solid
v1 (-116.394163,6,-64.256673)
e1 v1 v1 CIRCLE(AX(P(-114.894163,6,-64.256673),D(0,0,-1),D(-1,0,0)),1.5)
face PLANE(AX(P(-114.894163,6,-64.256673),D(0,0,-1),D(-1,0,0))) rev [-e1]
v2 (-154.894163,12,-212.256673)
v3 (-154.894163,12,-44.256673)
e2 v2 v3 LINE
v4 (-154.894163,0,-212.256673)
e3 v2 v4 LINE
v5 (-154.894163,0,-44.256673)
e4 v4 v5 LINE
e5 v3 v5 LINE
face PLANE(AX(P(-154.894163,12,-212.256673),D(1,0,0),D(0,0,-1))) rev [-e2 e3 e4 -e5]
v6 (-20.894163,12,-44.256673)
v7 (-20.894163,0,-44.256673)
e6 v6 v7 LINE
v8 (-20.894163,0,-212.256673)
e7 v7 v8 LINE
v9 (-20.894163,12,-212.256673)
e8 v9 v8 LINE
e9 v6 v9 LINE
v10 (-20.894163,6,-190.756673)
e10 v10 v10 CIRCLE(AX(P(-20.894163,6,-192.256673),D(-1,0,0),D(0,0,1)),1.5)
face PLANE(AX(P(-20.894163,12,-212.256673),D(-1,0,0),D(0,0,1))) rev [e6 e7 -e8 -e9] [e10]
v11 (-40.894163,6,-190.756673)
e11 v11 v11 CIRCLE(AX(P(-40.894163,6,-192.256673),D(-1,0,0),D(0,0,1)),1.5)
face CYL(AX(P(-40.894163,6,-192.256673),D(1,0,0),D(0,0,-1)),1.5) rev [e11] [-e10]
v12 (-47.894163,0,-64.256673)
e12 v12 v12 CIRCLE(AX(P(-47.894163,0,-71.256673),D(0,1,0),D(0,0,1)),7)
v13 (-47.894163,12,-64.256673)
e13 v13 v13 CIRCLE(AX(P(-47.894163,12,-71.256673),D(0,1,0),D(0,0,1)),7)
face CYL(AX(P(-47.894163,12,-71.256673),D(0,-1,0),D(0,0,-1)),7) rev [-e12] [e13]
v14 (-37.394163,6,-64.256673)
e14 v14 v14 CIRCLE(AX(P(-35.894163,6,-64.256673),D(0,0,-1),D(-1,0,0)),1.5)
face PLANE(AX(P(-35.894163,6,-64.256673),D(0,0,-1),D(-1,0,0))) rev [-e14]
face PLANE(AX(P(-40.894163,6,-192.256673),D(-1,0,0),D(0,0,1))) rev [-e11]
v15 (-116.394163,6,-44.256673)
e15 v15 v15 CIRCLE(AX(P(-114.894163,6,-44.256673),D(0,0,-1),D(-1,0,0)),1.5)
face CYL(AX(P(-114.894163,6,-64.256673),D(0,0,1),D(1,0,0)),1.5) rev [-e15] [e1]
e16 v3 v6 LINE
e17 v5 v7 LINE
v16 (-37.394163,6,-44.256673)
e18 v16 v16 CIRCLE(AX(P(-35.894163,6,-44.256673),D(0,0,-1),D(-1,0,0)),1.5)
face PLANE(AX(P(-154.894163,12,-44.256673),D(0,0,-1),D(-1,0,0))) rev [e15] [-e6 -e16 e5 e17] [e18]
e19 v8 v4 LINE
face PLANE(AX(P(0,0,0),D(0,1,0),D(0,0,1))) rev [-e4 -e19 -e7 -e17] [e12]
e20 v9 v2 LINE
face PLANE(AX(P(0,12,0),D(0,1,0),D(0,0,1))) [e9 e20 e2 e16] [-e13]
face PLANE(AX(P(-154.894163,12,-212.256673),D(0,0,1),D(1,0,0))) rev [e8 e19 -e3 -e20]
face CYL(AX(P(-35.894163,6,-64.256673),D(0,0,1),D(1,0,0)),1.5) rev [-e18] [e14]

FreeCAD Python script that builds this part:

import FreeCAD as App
import Part
import Sketcher
from FreeCAD import Vector
Q = App.Units.Quantity


def add_polygon(sketch, points):
    """Adds a closed chain of lines whose ends are joined by coincident constraints."""
    first, n = sketch.GeometryCount, len(points)
    for a, b in zip(points, points[1:] + points[:1]):
        sketch.addGeometry(Part.LineSegment(App.Vector(*a, 0), App.Vector(*b, 0)), False)
    for i in range(n):
        sketch.addConstraint(Sketcher.Constraint("Coincident", first + i, 2, first + (i + 1) % n, 1))

doc = App.newDocument("Part")
body = doc.addObject("PartDesign::Body", "Body")

sketch1 = body.newObject("Sketcher::SketchObject", "Sketch")
sketch1.AttachmentSupport = (doc.getObject("XZ_Plane"), [""])
sketch1.MapMode = "FlatFace"
add_polygon(sketch1, [(-155, -212), (-155, -44), (-21, -44), (-21, -212)])
sketch1.addGeometry(Part.Circle(Vector(-48, -71, 0), Vector(0, 0, 1), 7), False)
sketch1.addConstraint(Sketcher.Constraint("Vertical", 0))
sketch1.addConstraint(Sketcher.Constraint("Horizontal", 1))
sketch1.addConstraint(Sketcher.Constraint("Vertical", 2))
sketch1.addConstraint(Sketcher.Constraint("Horizontal", 3))
sketch1.addConstraint(Sketcher.Constraint("Diameter", 4, Q("14 mm")))
sketch1.addConstraint(Sketcher.Constraint("DistanceX", 1, 1, 1, 2, Q("134 mm")))
sketch1.addConstraint(Sketcher.Constraint("DistanceY", 0, 1, 0, 2, Q("168 mm")))
sketch1.addConstraint(Sketcher.Constraint("DistanceX", 0, 2, 4, 3, Q("107 mm")))
sketch1.addConstraint(Sketcher.Constraint("DistanceY", 4, 3, 0, 2, Q("27 mm")))
sketch1.addConstraint(Sketcher.Constraint("DistanceX", 4, 3, -1, 1, Q("47.894163 mm")))
sketch1.addConstraint(Sketcher.Constraint("DistanceY", 4, 3, -1, 1, Q("71.256673 mm")))
pad1 = body.newObject("PartDesign::Pad", "Pad")
pad1.Profile = sketch1
pad1.Length = 12
pad1.Reversed = True

sketch2 = body.newObject("Sketcher::SketchObject", "Sketch001")
sketch2.AttachmentSupport = (doc.getObject("XY_Plane"), [""])
sketch2.MapMode = "FlatFace"
sketch2.AttachmentOffset = App.Placement(Vector(0, 0, -44.256673), App.Rotation())
sketch2.addGeometry(Part.Circle(Vector(-114.9, 6, 0), Vector(0, 0, 1), 1.5), False)
sketch2.addGeometry(Part.Circle(Vector(-35.9, 6, 0), Vector(0, 0, 1), 1.5), False)
sketch2.addConstraint(Sketcher.Constraint("Equal", 0, 1))
sketch2.addConstraint(Sketcher.Constraint("Horizontal", 0, 3, 1, 3))
sketch2.addConstraint(Sketcher.Constraint("Diameter", 0, Q("3 mm")))
sketch2.addConstraint(Sketcher.Constraint("DistanceY", -1, 1, 0, 3, Q("6 mm")))
sketch2.addConstraint(Sketcher.Constraint("DistanceX", 0, 3, 1, 3, Q("79 mm")))
sketch2.addConstraint(Sketcher.Constraint("DistanceX", 0, 3, -1, 1, Q("114.894163 mm")))
pocket1 = body.newObject("PartDesign::Pocket", "Pocket")
pocket1.Profile = sketch2
pocket1.Length = 20

sketch3 = body.newObject("Sketcher::SketchObject", "Sketch002")
sketch3.AttachmentSupport = (doc.getObject("YZ_Plane"), [""])
sketch3.MapMode = "FlatFace"
sketch3.AttachmentOffset = App.Placement(Vector(0, 0, -20.894163), App.Rotation())
sketch3.addGeometry(Part.Circle(Vector(6, -192.3, 0), Vector(0, 0, 1), 1.5), False)
sketch3.addConstraint(Sketcher.Constraint("Diameter", 0, Q("3 mm")))
sketch3.addConstraint(Sketcher.Constraint("DistanceX", -1, 1, 0, 3, Q("6 mm")))
sketch3.addConstraint(Sketcher.Constraint("DistanceY", 0, 3, -1, 1, Q("192.256673 mm")))
pocket2 = body.newObject("PartDesign::Pocket", "Pocket001")
pocket2.Profile = sketch3
pocket2.Length = 20

doc.recompute()
